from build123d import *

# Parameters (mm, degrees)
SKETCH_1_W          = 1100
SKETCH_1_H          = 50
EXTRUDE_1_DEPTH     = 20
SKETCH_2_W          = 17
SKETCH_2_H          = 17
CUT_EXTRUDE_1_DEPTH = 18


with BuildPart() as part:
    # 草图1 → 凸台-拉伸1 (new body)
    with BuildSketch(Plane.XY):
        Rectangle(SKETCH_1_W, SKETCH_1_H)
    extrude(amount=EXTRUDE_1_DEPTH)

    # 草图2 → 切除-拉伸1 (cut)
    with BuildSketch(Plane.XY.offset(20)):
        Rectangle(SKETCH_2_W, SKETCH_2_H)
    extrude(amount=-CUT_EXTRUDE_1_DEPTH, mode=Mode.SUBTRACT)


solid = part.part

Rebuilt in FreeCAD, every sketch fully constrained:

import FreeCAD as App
import Part
import Sketcher

V = App.Vector
Q = App.Units.Quantity

doc = App.newDocument("Part")
params = doc.addObject("Spreadsheet::Sheet", "Params")
for row, (alias, value) in enumerate([
    ("sketch1_width", "1100 mm"),
    ("sketch1_height", "50 mm"),
    ("pad1_length", "20 mm"),
    ("sketch2_width", "17 mm"),
    ("pocket1_length", "18 mm"),
], start=1):
    params.set(f"A{row}", alias)
    params.set(f"B{row}", "=" + value)
    params.setAlias(f"B{row}", alias)

body = doc.addObject("PartDesign::Body", "Body")

# Sketch on XY plane
sketch1 = body.newObject("Sketcher::SketchObject", "Sketch")
sketch1.AttachmentSupport = (doc.getObject("XY_Plane"), [""])
sketch1.MapMode = "FlatFace"
sketch1.addGeometry([
    Part.LineSegment(V(-550, 25, 0), V(-550, -25, 0)),
    Part.LineSegment(V(-550, -25, 0), V(550, -25, 0)),
    Part.LineSegment(V(550, -25, 0), V(550, 25, 0)),
    Part.LineSegment(V(550, 25, 0), V(-550, 25, 0)),
], False)
sketch1.addConstraint([
    Sketcher.Constraint("Coincident", 0, 2, 1, 1),
    Sketcher.Constraint("Coincident", 1, 2, 2, 1),
    Sketcher.Constraint("Coincident", 2, 2, 3, 1),
    Sketcher.Constraint("Coincident", 3, 2, 0, 1),
    Sketcher.Constraint("Vertical", 0),
    Sketcher.Constraint("Horizontal", 1),
    Sketcher.Constraint("Vertical", 2),
    Sketcher.Constraint("Horizontal", 3),
    Sketcher.Constraint("Symmetric", 0, 2, 2, 2, -1, 1),
    Sketcher.Constraint("DistanceX", 1, 1, 1, 2, Q("1100 mm")),
    Sketcher.Constraint("DistanceY", 0, 2, 0, 1, Q("50 mm")),
])
sketch1.setExpression("Constraints[9]", "Params.sketch1_width")
sketch1.setExpression("Constraints[10]", "Params.sketch1_height")
pad1 = body.newObject("PartDesign::Pad", "Pad")
pad1.Profile = sketch1
pad1.setExpression("Length", "Params.pad1_length")

# Sketch on XY plane
sketch2 = body.newObject("Sketcher::SketchObject", "Sketch001")
sketch2.AttachmentSupport = (doc.getObject("XY_Plane"), [""])
sketch2.MapMode = "FlatFace"
sketch2.AttachmentOffset = App.Placement(V(0, 0, 20), App.Rotation())
sketch2.addGeometry([
    Part.LineSegment(V(-8.5, 8.5, 0), V(-8.5, -8.5, 0)),
    Part.LineSegment(V(-8.5, -8.5, 0), V(8.5, -8.5, 0)),
    Part.LineSegment(V(8.5, -8.5, 0), V(8.5, 8.5, 0)),
    Part.LineSegment(V(8.5, 8.5, 0), V(-8.5, 8.5, 0)),
], False)
sketch2.addConstraint([
    Sketcher.Constraint("Coincident", 0, 2, 1, 1),
    Sketcher.Constraint("Coincident", 1, 2, 2, 1),
    Sketcher.Constraint("Coincident", 2, 2, 3, 1),
    Sketcher.Constraint("Coincident", 3, 2, 0, 1),
    Sketcher.Constraint("Vertical", 0),
    Sketcher.Constraint("Horizontal", 1),
    Sketcher.Constraint("Vertical", 2),
    Sketcher.Constraint("Horizontal", 3),
    Sketcher.Constraint("Symmetric", 0, 2, 2, 2, -1, 1),
    Sketcher.Constraint("Equal", 3, 0),
    Sketcher.Constraint("DistanceX", 1, 1, 1, 2, Q("17 mm")),
])
sketch2.setExpression("Constraints[10]", "Params.sketch2_width")
pocket1 = body.newObject("PartDesign::Pocket", "Pocket")
pocket1.Profile = sketch2
pocket1.setExpression("Length", "Params.pocket1_length")

doc.recompute()
